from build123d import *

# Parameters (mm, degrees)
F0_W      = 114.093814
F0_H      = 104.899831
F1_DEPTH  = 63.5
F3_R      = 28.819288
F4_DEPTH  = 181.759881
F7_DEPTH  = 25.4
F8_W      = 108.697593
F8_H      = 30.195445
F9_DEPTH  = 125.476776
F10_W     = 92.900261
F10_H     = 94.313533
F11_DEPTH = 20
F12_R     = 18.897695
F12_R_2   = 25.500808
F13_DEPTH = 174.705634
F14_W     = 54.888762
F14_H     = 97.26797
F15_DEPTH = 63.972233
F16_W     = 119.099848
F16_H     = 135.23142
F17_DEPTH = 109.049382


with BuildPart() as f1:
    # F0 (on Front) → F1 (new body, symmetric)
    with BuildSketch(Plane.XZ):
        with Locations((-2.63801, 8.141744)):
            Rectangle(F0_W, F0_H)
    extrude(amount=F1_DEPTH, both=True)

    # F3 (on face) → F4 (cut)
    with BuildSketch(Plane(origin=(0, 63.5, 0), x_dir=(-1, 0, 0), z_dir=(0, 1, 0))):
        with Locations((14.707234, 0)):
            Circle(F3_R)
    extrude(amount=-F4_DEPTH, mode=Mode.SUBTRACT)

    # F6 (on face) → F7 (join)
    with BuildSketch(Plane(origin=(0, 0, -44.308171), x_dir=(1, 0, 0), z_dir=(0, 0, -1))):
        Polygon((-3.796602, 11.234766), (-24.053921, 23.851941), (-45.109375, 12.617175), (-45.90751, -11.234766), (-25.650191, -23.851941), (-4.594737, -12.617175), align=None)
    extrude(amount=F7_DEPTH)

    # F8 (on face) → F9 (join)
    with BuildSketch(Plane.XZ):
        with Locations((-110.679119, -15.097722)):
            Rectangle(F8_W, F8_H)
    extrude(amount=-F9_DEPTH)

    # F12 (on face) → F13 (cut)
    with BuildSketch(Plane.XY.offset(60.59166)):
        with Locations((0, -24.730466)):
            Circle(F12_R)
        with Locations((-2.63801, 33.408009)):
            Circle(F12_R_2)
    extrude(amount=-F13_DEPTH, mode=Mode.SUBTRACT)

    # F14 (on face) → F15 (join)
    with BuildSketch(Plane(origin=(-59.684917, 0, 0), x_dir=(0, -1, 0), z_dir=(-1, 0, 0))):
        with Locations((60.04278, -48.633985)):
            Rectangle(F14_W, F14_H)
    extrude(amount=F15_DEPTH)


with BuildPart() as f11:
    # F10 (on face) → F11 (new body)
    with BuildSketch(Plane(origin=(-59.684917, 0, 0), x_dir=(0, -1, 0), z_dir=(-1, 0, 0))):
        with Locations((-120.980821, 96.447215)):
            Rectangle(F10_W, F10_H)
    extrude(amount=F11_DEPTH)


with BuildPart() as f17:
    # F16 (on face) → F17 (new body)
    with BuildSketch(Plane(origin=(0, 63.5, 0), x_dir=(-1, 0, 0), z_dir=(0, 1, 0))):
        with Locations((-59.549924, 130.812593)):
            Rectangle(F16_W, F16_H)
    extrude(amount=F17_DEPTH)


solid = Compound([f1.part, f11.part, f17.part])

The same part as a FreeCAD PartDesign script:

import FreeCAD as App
import Part
import Sketcher
from FreeCAD import Vector
Q = App.Units.Quantity

doc = App.newDocument("Part")
params = doc.addObject("Spreadsheet::Sheet", "Params")
for row, (alias, value) in enumerate([
    ("pad1_length", "5 in"),
    ("pocket1_length", "181.759881 mm"),
    ("pad2_length", "1 in"),
    ("pad3_length", "125.476776 mm"),
    ("pocket2_length", "174.705634 mm"),
    ("pad4_length", "63.972233 mm"),
    ("pad5_length", "20 mm"),
    ("pad6_length", "109.049382 mm"),
], start=1):
    params.set(f"A{row}", alias)
    params.set(f"B{row}", "=" + value)
    params.setAlias(f"B{row}", alias)

body = doc.addObject("PartDesign::Body", "Body")

# Sketch on XZ plane
sketch1 = doc.addObject("Sketcher::SketchObject", "Sketch")
body.addObject(sketch1)
sketch1.AttachmentSupport = (doc.XZ_Plane, [""])
sketch1.MapMode = "FlatFace"
sketch1.addGeometry(Part.LineSegment(Vector(-60, 61, 0), Vector(-60, -44, 0)), False)
sketch1.addGeometry(Part.LineSegment(Vector(-60, -44, 0), Vector(54, -44, 0)), False)
sketch1.addGeometry(Part.LineSegment(Vector(54, -44, 0), Vector(54, 61, 0)), False)
sketch1.addGeometry(Part.LineSegment(Vector(54, 61, 0), Vector(-60, 61, 0)), False)
sketch1.addConstraint(Sketcher.Constraint("Coincident", 0, 2, 1, 1))
sketch1.addConstraint(Sketcher.Constraint("Coincident", 1, 2, 2, 1))
sketch1.addConstraint(Sketcher.Constraint("Coincident", 2, 2, 3, 1))
sketch1.addConstraint(Sketcher.Constraint("Coincident", 3, 2, 0, 1))
sketch1.addConstraint(Sketcher.Constraint("Vertical", 0))
sketch1.addConstraint(Sketcher.Constraint("Horizontal", 1))
sketch1.addConstraint(Sketcher.Constraint("Vertical", 2))
sketch1.addConstraint(Sketcher.Constraint("Horizontal", 3))
sketch1.addConstraint(Sketcher.Constraint("DistanceX", 0, 2, -1, 1, Q("2.3497999 in")))
sketch1.addConstraint(Sketcher.Constraint("DistanceY", 0, 2, 0, 1, Q("104.899831 mm")))
sketch1.addConstraint(Sketcher.Constraint("DistanceX", 1, 1, 1, 2, Q("114.093814 mm")))
sketch1.addConstraint(Sketcher.Constraint("DistanceY", 0, 2, -1, 1, Q("44.308172 mm")))
pad1 = doc.addObject("PartDesign::Pad", "Pad")
body.addObject(pad1)
pad1.Profile = sketch1
pad1.setExpression("Length", "Params.pad1_length")
pad1.Midplane = True

# Sketch on XZ plane
sketch2 = doc.addObject("Sketcher::SketchObject", "Sketch001")
body.addObject(sketch2)
sketch2.AttachmentSupport = (doc.XZ_Plane, [""])
sketch2.MapMode = "FlatFace"
sketch2.AttachmentOffset = App.Placement(Vector(0, 0, -2.5 * 25.4), App.Rotation())
sketch2.addGeometry(Part.Circle(Vector(-15, 0, 0), Vector(0, 0, 1), 29), False)
sketch2.addConstraint(Sketcher.Constraint("PointOnObject", 0, 3, -1))
sketch2.addConstraint(Sketcher.Constraint("Diameter", 0, Q("57.638576 mm")))
sketch2.addConstraint(Sketcher.Constraint("DistanceX", 0, 3, -1, 1, Q("14.707234 mm")))
pocket1 = doc.addObject("PartDesign::Pocket", "Pocket")
body.addObject(pocket1)
pocket1.Profile = sketch2
pocket1.setExpression("Length", "Params.pocket1_length")
pocket1.Reversed = True

# Sketch on XY plane
sketch3 = doc.addObject("Sketcher::SketchObject", "Sketch002")
body.addObject(sketch3)
sketch3.AttachmentSupport = (doc.XY_Plane, [""])
sketch3.MapMode = "FlatFace"
sketch3.AttachmentOffset = App.Placement(Vector(0, 0, -44.308171), App.Rotation())
sketch3.addGeometry(Part.LineSegment(Vector(-4, -11, 0), Vector(-24, -24, 0)), False)
sketch3.addGeometry(Part.LineSegment(Vector(-24, -24, 0), Vector(-45, -13, 0)), False)
sketch3.addGeometry(Part.LineSegment(Vector(-45, -13, 0), Vector(-46, 11, 0)), False)
sketch3.addGeometry(Part.LineSegment(Vector(-46, 11, 0), Vector(-26, 24, 0)), False)
sketch3.addGeometry(Part.LineSegment(Vector(-26, 24, 0), Vector(-5, 13, 0)), False)
sketch3.addGeometry(Part.LineSegment(Vector(-5, 13, 0), Vector(-4, -11, 0)), False)
sketch3.addConstraint(Sketcher.Constraint("Coincident", 0, 2, 1, 1))
sketch3.addConstraint(Sketcher.Constraint("Coincident", 1, 2, 2, 1))
sketch3.addConstraint(Sketcher.Constraint("Coincident", 2, 2, 3, 1))
sketch3.addConstraint(Sketcher.Constraint("Coincident", 3, 2, 4, 1))
sketch3.addConstraint(Sketcher.Constraint("Coincident", 4, 2, 5, 1))
sketch3.addConstraint(Sketcher.Constraint("Coincident", 5, 2, 0, 1))
sketch3.addConstraint(Sketcher.Constraint("Parallel", 0, 3))
sketch3.addConstraint(Sketcher.Constraint("Parallel", 1, 4))
sketch3.addConstraint(Sketcher.Constraint("Parallel", 2, 5))
sketch3.addConstraint(Sketcher.Constraint("Equal", 0, 1))
sketch3.addConstraint(Sketcher.Constraint("Equal", 1, 2))
sketch3.addConstraint(Sketcher.Constraint("Equal", 2, 3))
sketch3.addConstraint(Sketcher.Constraint("DistanceX", 5, 2, -1, 1, Q("3.796602 mm")))
sketch3.addConstraint(Sketcher.Constraint("Distance", 0, Q("23.86529 mm")))
sketch3.addConstraint(Sketcher.Constraint("DistanceX", 0, 2, -1, 1, Q("24.053921 mm")))
sketch3.addConstraint(Sketcher.Constraint("DistanceY", 0, 2, -1, 1, Q("23.851941 mm")))
sketch3.addConstraint(Sketcher.Constraint("DistanceX", 2, 2, -1, 1, Q("45.90751 mm")))
sketch3.addConstraint(Sketcher.Constraint("DistanceY", -1, 1, 3, 2, Q("23.851941 mm")))
pad2 = doc.addObject("PartDesign::Pad", "Pad001")
body.addObject(pad2)
pad2.Profile = sketch3
pad2.setExpression("Length", "Params.pad2_length")
pad2.Reversed = True

# Sketch on XZ plane
sketch4 = doc.addObject("Sketcher::SketchObject", "Sketch003")
body.addObject(sketch4)
sketch4.AttachmentSupport = (doc.XZ_Plane, [""])
sketch4.MapMode = "FlatFace"
sketch4.addGeometry(Part.LineSegment(Vector(-165, 0, 0), Vector(-165, -30, 0)), False)
sketch4.addGeometry(Part.LineSegment(Vector(-165, -30, 0), Vector(-56, -30, 0)), False)
sketch4.addGeometry(Part.LineSegment(Vector(-56, -30, 0), Vector(-56, 0, 0)), False)
sketch4.addGeometry(Part.LineSegment(Vector(-56, 0, 0), Vector(-165, 0, 0)), False)
sketch4.addConstraint(Sketcher.Constraint("Coincident", 0, 2, 1, 1))
sketch4.addConstraint(Sketcher.Constraint("Coincident", 1, 2, 2, 1))
sketch4.addConstraint(Sketcher.Constraint("Coincident", 2, 2, 3, 1))
sketch4.addConstraint(Sketcher.Constraint("Coincident", 3, 2, 0, 1))
sketch4.addConstraint(Sketcher.Constraint("Vertical", 0))
sketch4.addConstraint(Sketcher.Constraint("Horizontal", 1))
sketch4.addConstraint(Sketcher.Constraint("Vertical", 2))
sketch4.addConstraint(Sketcher.Constraint("Horizontal", 3))
sketch4.addConstraint(Sketcher.Constraint("PointOnObject", 2, 2, -1))
sketch4.addConstraint(Sketcher.Constraint("DistanceX", 1, 1, 1, 2, Q("108.697593 mm")))
sketch4.addConstraint(Sketcher.Constraint("DistanceY", 0, 2, 0, 1, Q("30.195445 mm")))
sketch4.addConstraint(Sketcher.Constraint("DistanceX", 0, 2, -1, 1, Q("165.027916 mm")))
pad3 = doc.addObject("PartDesign::Pad", "Pad002")
body.addObject(pad3)
pad3.Profile = sketch4
pad3.setExpression("Length", "Params.pad3_length")
pad3.Reversed = True

# Sketch on XY plane
sketch5 = doc.addObject("Sketcher::SketchObject", "Sketch004")
body.addObject(sketch5)
sketch5.AttachmentSupport = (doc.XY_Plane, [""])
sketch5.MapMode = "FlatFace"
sketch5.AttachmentOffset = App.Placement(Vector(0, 0, 60.59166), App.Rotation())
sketch5.addGeometry(Part.Circle(Vector(0, -25, 0), Vector(0, 0, 1), 19), False)
sketch5.addGeometry(Part.Circle(Vector(-3, 33, 0), Vector(0, 0, 1), 26), False)
sketch5.addConstraint(Sketcher.Constraint("PointOnObject", 0, 3, -2))
sketch5.addConstraint(Sketcher.Constraint("Diameter", 0, Q("37.79539 mm")))
sketch5.addConstraint(Sketcher.Constraint("Diameter", 1, Q("51.001616 mm")))
sketch5.addConstraint(Sketcher.Constraint("DistanceX", 1, 3, -1, 1, Q("2.63801 mm")))
sketch5.addConstraint(Sketcher.Constraint("DistanceY", -1, 1, 1, 3, Q("33.408009 mm")))
sketch5.addConstraint(Sketcher.Constraint("DistanceY", 0, 3, -1, 1, Q("24.730466 mm")))
pocket2 = doc.addObject("PartDesign::Pocket", "Pocket001")
body.addObject(pocket2)
pocket2.Profile = sketch5
pocket2.setExpression("Length", "Params.pocket2_length")

# Sketch on YZ plane
sketch6 = doc.addObject("Sketcher::SketchObject", "Sketch005")
body.addObject(sketch6)
sketch6.AttachmentSupport = (doc.YZ_Plane, [""])
sketch6.MapMode = "FlatFace"
sketch6.AttachmentOffset = App.Placement(Vector(0, 0, -2.3497999 * 25.4), App.Rotation())
sketch6.addGeometry(Part.LineSegment(Vector(-33, 0, 0), Vector(-33, -97, 0)), False)
sketch6.addGeometry(Part.LineSegment(Vector(-33, -97, 0), Vector(-87, -97, 0)), False)
sketch6.addGeometry(Part.LineSegment(Vector(-87, -97, 0), Vector(-87, 0, 0)), False)
sketch6.addGeometry(Part.LineSegment(Vector(-87, 0, 0), Vector(-33, 0, 0)), False)
sketch6.addConstraint(Sketcher.Constraint("Coincident", 0, 2, 1, 1))
sketch6.addConstraint(Sketcher.Constraint("Coincident", 1, 2, 2, 1))
sketch6.addConstraint(Sketcher.Constraint("Coincident", 2, 2, 3, 1))
sketch6.addConstraint(Sketcher.Constraint("Coincident", 3, 2, 0, 1))
sketch6.addConstraint(Sketcher.Constraint("Vertical", 0))
sketch6.addConstraint(Sketcher.Constraint("Horizontal", 1))
sketch6.addConstraint(Sketcher.Constraint("Vertical", 2))
sketch6.addConstraint(Sketcher.Constraint("Horizontal", 3))
sketch6.addConstraint(Sketcher.Constraint("PointOnObject", 2, 2, -1))
sketch6.addConstraint(Sketcher.Constraint("DistanceY", 0, 2, 0, 1, Q("97.26797 mm")))
sketch6.addConstraint(Sketcher.Constraint("DistanceX", 0, 2, -1, 1, Q("32.598399 mm")))
sketch6.addConstraint(Sketcher.Constraint("DistanceX", 1, 2, 1, 1, Q("54.888762 mm")))
pad4 = doc.addObject("PartDesign::Pad", "Pad003")
body.addObject(pad4)
pad4.Profile = sketch6
pad4.setExpression("Length", "Params.pad4_length")
pad4.Reversed = True
body2 = doc.addObject("PartDesign::Body", "Body001")

# Sketch on YZ plane
sketch7 = doc.addObject("Sketcher::SketchObject", "Sketch006")
body2.addObject(sketch7)
sketch7.AttachmentSupport = (doc.getObject("YZ_Plane001"), [""])
sketch7.MapMode = "FlatFace"
sketch7.AttachmentOffset = App.Placement(Vector(0, 0, -2.3497999 * 25.4), App.Rotation())
sketch7.addGeometry(Part.LineSegment(Vector(167, 144, 0), Vector(167, 49, 0)), False)
sketch7.addGeometry(Part.LineSegment(Vector(167, 49, 0), Vector(75, 49, 0)), False)
sketch7.addGeometry(Part.LineSegment(Vector(75, 49, 0), Vector(75, 144, 0)), False)
sketch7.addGeometry(Part.LineSegment(Vector(75, 144, 0), Vector(167, 144, 0)), False)
sketch7.addConstraint(Sketcher.Constraint("Coincident", 0, 2, 1, 1))
sketch7.addConstraint(Sketcher.Constraint("Coincident", 1, 2, 2, 1))
sketch7.addConstraint(Sketcher.Constraint("Coincident", 2, 2, 3, 1))
sketch7.addConstraint(Sketcher.Constraint("Coincident", 3, 2, 0, 1))
sketch7.addConstraint(Sketcher.Constraint("Vertical", 0))
sketch7.addConstraint(Sketcher.Constraint("Horizontal", 1))
sketch7.addConstraint(Sketcher.Constraint("Vertical", 2))
sketch7.addConstraint(Sketcher.Constraint("Horizontal", 3))
sketch7.addConstraint(Sketcher.Constraint("DistanceY", -1, 1, 2, 2, Q("5.6537001 in")))
sketch7.addConstraint(Sketcher.Constraint("DistanceX", 1, 2, 1, 1, Q("92.900261 mm")))
sketch7.addConstraint(Sketcher.Constraint("DistanceY", 0, 2, 0, 1, Q("94.313533 mm")))
sketch7.addConstraint(Sketcher.Constraint("DistanceX", -1, 1, 0, 2, Q("167.430951 mm")))
pad5 = doc.addObject("PartDesign::Pad", "Pad004")
body2.addObject(pad5)
pad5.Profile = sketch7
pad5.setExpression("Length", "Params.pad5_length")
pad5.Reversed = True
body3 = doc.addObject("PartDesign::Body", "Body002")

# Sketch on XZ plane
sketch8 = doc.addObject("Sketcher::SketchObject", "Sketch007")
body3.addObject(sketch8)
sketch8.AttachmentSupport = (doc.getObject("XZ_Plane002"), [""])
sketch8.MapMode = "FlatFace"
sketch8.AttachmentOffset = App.Placement(Vector(0, 0, -2.5 * 25.4), App.Rotation())
sketch8.addGeometry(Part.LineSegment(Vector(119, 198, 0), Vector(119, 63, 0)), False)
sketch8.addGeometry(Part.LineSegment(Vector(119, 63, 0), Vector(0, 63, 0)), False)
sketch8.addGeometry(Part.LineSegment(Vector(0, 63, 0), Vector(0, 198, 0)), False)
sketch8.addGeometry(Part.LineSegment(Vector(0, 198, 0), Vector(119, 198, 0)), False)
sketch8.addConstraint(Sketcher.Constraint("Coincident", 0, 2, 1, 1))
sketch8.addConstraint(Sketcher.Constraint("Coincident", 1, 2, 2, 1))
sketch8.addConstraint(Sketcher.Constraint("Coincident", 2, 2, 3, 1))
sketch8.addConstraint(Sketcher.Constraint("Coincident", 3, 2, 0, 1))
sketch8.addConstraint(Sketcher.Constraint("Vertical", 0))
sketch8.addConstraint(Sketcher.Constraint("Horizontal", 1))
sketch8.addConstraint(Sketcher.Constraint("Vertical", 2))
sketch8.addConstraint(Sketcher.Constraint("Horizontal", 3))
sketch8.addConstraint(Sketcher.Constraint("PointOnObject", 1, 2, -2))
sketch8.addConstraint(Sketcher.Constraint("DistanceY", 0, 2, 0, 1, Q("135.23142 mm")))
sketch8.addConstraint(Sketcher.Constraint("DistanceX", 1, 2, 1, 1, Q("119.099848 mm")))
sketch8.addConstraint(Sketcher.Constraint("DistanceY", -1, 1, 0, 2, Q("63.196883 mm")))
pad6 = doc.addObject("PartDesign::Pad", "Pad005")
body3.addObject(pad6)
pad6.Profile = sketch8
pad6.setExpression("Length", "Params.pad6_length")
pad6.Reversed = True

doc.recompute()
